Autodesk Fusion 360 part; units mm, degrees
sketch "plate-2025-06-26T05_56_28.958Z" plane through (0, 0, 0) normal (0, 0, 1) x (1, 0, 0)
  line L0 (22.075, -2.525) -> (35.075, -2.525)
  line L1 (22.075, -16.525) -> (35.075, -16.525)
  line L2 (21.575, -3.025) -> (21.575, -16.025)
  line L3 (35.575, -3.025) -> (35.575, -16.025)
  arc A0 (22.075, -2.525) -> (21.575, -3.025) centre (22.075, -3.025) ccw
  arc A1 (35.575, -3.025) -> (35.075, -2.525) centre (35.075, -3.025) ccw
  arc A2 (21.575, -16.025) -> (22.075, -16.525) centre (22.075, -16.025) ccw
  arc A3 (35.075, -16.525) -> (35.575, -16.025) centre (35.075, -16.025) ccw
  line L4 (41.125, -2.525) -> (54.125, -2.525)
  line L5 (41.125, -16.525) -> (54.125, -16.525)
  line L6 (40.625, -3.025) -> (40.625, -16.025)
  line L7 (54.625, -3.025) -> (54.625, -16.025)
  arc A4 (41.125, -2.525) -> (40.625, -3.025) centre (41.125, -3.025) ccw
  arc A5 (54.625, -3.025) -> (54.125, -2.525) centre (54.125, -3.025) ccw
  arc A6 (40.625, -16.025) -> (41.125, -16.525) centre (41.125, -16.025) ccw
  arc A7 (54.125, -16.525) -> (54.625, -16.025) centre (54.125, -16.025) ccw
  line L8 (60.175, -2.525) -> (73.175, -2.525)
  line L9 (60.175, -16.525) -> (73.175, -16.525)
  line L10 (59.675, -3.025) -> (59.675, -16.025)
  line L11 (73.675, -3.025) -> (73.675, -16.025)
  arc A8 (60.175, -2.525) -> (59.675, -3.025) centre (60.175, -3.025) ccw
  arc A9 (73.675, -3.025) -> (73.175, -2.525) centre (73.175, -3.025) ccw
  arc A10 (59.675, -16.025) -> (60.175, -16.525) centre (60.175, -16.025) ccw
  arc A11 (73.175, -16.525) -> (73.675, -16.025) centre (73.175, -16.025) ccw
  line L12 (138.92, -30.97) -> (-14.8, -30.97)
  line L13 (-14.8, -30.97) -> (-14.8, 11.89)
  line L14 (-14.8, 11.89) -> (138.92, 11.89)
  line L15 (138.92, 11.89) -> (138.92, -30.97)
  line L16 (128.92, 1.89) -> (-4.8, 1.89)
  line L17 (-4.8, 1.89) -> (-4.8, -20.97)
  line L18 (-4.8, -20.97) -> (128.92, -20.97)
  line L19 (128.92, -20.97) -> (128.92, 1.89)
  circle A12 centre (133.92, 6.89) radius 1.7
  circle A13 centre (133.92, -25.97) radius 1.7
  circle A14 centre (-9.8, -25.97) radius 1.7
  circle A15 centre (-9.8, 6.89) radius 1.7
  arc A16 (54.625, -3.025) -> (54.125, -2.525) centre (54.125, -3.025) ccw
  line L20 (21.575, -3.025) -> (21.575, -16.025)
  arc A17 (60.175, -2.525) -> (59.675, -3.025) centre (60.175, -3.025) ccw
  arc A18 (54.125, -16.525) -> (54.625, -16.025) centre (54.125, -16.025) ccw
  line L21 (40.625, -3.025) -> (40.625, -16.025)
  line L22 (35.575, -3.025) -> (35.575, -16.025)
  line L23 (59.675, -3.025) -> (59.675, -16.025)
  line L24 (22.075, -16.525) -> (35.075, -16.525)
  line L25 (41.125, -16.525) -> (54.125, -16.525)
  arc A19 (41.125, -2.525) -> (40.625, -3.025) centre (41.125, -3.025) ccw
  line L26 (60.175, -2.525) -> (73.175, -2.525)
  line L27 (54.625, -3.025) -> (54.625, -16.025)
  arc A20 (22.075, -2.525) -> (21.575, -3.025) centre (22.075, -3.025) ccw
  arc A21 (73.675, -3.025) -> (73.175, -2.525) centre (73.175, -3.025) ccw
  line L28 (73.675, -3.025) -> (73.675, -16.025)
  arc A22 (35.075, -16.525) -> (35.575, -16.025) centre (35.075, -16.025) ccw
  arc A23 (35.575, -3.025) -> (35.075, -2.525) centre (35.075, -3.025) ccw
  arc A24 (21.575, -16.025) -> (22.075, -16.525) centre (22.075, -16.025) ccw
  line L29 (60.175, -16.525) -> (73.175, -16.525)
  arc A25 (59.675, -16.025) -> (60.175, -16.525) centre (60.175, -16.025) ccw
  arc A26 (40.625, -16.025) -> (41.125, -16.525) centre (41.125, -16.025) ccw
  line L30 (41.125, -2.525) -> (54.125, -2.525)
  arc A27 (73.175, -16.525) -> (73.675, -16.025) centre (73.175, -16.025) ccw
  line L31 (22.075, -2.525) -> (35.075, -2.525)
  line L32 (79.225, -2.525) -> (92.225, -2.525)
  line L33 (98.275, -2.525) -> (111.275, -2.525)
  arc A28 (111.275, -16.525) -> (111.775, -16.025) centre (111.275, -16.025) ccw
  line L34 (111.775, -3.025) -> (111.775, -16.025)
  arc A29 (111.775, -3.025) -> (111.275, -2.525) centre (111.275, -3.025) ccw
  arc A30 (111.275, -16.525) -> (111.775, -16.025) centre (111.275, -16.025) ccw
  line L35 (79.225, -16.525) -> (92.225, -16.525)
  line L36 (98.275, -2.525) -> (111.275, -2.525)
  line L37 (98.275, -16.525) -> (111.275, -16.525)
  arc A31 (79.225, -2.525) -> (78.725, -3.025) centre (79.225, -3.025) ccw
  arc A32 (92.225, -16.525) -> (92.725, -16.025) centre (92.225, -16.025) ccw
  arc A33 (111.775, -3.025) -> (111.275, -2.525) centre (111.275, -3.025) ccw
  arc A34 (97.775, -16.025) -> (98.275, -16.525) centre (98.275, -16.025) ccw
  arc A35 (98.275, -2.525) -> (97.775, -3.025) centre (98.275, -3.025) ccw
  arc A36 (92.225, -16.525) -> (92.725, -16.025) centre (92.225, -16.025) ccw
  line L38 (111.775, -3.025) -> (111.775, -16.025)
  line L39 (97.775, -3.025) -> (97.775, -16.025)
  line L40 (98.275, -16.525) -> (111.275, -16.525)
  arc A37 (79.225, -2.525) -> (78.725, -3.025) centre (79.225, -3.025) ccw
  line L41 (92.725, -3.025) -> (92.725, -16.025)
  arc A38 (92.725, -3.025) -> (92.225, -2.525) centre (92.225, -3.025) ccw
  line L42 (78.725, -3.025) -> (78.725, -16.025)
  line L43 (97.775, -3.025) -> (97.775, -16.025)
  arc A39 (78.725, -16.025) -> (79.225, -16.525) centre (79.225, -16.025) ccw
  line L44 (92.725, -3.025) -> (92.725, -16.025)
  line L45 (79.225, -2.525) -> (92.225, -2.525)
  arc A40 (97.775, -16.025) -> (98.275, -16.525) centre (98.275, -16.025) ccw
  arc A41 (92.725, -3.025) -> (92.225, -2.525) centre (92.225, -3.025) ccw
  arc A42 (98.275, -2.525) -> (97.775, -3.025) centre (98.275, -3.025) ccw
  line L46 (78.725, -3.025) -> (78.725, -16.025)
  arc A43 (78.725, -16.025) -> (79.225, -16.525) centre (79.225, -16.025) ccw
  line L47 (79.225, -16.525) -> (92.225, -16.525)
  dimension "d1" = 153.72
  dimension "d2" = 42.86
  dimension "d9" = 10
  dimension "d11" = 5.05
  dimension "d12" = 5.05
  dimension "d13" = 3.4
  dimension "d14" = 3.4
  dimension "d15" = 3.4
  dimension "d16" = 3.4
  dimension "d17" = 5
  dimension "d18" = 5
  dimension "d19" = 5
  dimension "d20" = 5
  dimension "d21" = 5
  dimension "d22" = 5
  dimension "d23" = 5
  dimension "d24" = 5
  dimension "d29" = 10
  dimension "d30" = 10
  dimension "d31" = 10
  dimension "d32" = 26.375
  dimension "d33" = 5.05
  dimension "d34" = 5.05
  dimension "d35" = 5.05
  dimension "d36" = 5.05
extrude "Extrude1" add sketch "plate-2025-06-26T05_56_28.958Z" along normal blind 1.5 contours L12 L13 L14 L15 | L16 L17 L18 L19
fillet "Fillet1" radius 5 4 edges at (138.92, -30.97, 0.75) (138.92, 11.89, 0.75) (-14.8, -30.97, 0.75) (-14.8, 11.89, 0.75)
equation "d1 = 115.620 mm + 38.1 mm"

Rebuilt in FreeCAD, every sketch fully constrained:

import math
import FreeCAD as App
import Part
import Sketcher
from FreeCAD import Vector


def edges_at(feature, points):
    """Names of the edges that pass closest to the given points."""
    edges = feature.Shape.Edges
    near = lambda p: min(range(len(edges)), key=lambda i: edges[i].distToShape(Part.Vertex(*p))[0])
    return sorted({f"Edge{near(p) + 1}" for p in points})


def add_polygon(sketch, points):
    """Adds a closed chain of lines whose ends are joined by coincident constraints."""
    first, n = sketch.GeometryCount, len(points)
    for a, b in zip(points, points[1:] + points[:1]):
        sketch.addGeometry(Part.LineSegment(App.Vector(*a, 0), App.Vector(*b, 0)), False)
    for i in range(n):
        sketch.addConstraint(Sketcher.Constraint("Coincident", first + i, 2, first + (i + 1) % n, 1))

doc = App.newDocument("Part")
body = doc.addObject("PartDesign::Body", "Body")

# Sketch on XY plane
sketch1 = doc.addObject("Sketcher::SketchObject", "Sketch")
body.addObject(sketch1)
sketch1.AttachmentSupport = (doc.XY_Plane, [""])
sketch1.MapMode = "FlatFace"
add_polygon(sketch1, [(-14.8, -31), (138.9, -31), (138.9, 11.9), (-14.8, 11.9)])  # lines 0-3
sketch1.addGeometry(Part.Circle(Vector(-9.8, -26, 0), Vector(0, 0, 1), 1.7), False)  # 4
sketch1.addGeometry(Part.Circle(Vector(133.9, -26, 0), Vector(0, 0, 1), 1.7), False)  # 5
sketch1.addGeometry(Part.Circle(Vector(-9.8, 6.9, 0), Vector(0, 0, 1), 1.7), False)  # 6
sketch1.addGeometry(Part.Circle(Vector(133.9, 6.9, 0), Vector(0, 0, 1), 1.7), False)  # 7
sketch1.addGeometry(Part.ArcOfCircle(Part.Circle(Vector(111.3, -16, 0), Vector(0, 0, 1), 0.5), math.radians(-90), math.radians(0)), False)  # 8
sketch1.addGeometry(Part.LineSegment(Vector(111.3, -16.5, 0), Vector(98.3, -16.5, 0)), False)  # 9
sketch1.addGeometry(Part.ArcOfCircle(Part.Circle(Vector(98.3, -16, 0), Vector(0, 0, 1), 0.5), math.radians(180), math.radians(270)), False)  # 10
sketch1.addGeometry(Part.LineSegment(Vector(97.8, -16, 0), Vector(97.8, -3, 0)), False)  # 11
sketch1.addGeometry(Part.ArcOfCircle(Part.Circle(Vector(98.3, -3, 0), Vector(0, 0, 1), 0.5), math.radians(90), math.radians(180)), False)  # 12
sketch1.addGeometry(Part.LineSegment(Vector(98.3, -2.5, 0), Vector(111.3, -2.5, 0)), False)  # 13
sketch1.addGeometry(Part.ArcOfCircle(Part.Circle(Vector(111.3, -3, 0), Vector(0, 0, 1), 0.5), math.radians(0), math.radians(90)), False)  # 14
sketch1.addGeometry(Part.LineSegment(Vector(111.8, -3, 0), Vector(111.8, -16, 0)), False)  # 15
sketch1.addGeometry(Part.ArcOfCircle(Part.Circle(Vector(22.1, -3, 0), Vector(0, 0, 1), 0.5), math.radians(90), math.radians(180)), False)  # 16
sketch1.addGeometry(Part.LineSegment(Vector(22.1, -2.5, 0), Vector(35.1, -2.5, 0)), False)  # 17
sketch1.addGeometry(Part.ArcOfCircle(Part.Circle(Vector(35.1, -3, 0), Vector(0, 0, 1), 0.5), math.radians(0), math.radians(90)), False)  # 18
sketch1.addGeometry(Part.LineSegment(Vector(35.6, -3, 0), Vector(35.6, -16, 0)), False)  # 19
sketch1.addGeometry(Part.ArcOfCircle(Part.Circle(Vector(35.1, -16, 0), Vector(0, 0, 1), 0.5), math.radians(-90), math.radians(0)), False)  # 20
sketch1.addGeometry(Part.LineSegment(Vector(35.1, -16.5, 0), Vector(22.1, -16.5, 0)), False)  # 21
sketch1.addGeometry(Part.ArcOfCircle(Part.Circle(Vector(22.1, -16, 0), Vector(0, 0, 1), 0.5), math.radians(180), math.radians(270)), False)  # 22
sketch1.addGeometry(Part.LineSegment(Vector(21.6, -16, 0), Vector(21.6, -3, 0)), False)  # 23
sketch1.addGeometry(Part.ArcOfCircle(Part.Circle(Vector(41.1, -3, 0), Vector(0, 0, 1), 0.5), math.radians(90), math.radians(180)), False)  # 24
sketch1.addGeometry(Part.LineSegment(Vector(41.1, -2.5, 0), Vector(54.1, -2.5, 0)), False)  # 25
sketch1.addGeometry(Part.ArcOfCircle(Part.Circle(Vector(54.1, -3, 0), Vector(0, 0, 1), 0.5), math.radians(0), math.radians(90)), False)  # 26
sketch1.addGeometry(Part.LineSegment(Vector(54.6, -3, 0), Vector(54.6, -16, 0)), False)  # 27
sketch1.addGeometry(Part.ArcOfCircle(Part.Circle(Vector(54.1, -16, 0), Vector(0, 0, 1), 0.5), math.radians(-90), math.radians(0)), False)  # 28
sketch1.addGeometry(Part.LineSegment(Vector(54.1, -16.5, 0), Vector(41.1, -16.5, 0)), False)  # 29
sketch1.addGeometry(Part.ArcOfCircle(Part.Circle(Vector(41.1, -16, 0), Vector(0, 0, 1), 0.5), math.radians(180), math.radians(270)), False)  # 30
sketch1.addGeometry(Part.LineSegment(Vector(40.6, -16, 0), Vector(40.6, -3, 0)), False)  # 31
sketch1.addGeometry(Part.ArcOfCircle(Part.Circle(Vector(60.2, -3, 0), Vector(0, 0, 1), 0.5), math.radians(90), math.radians(180)), False)  # 32
sketch1.addGeometry(Part.LineSegment(Vector(60.2, -2.5, 0), Vector(73.2, -2.5, 0)), False)  # 33
sketch1.addGeometry(Part.ArcOfCircle(Part.Circle(Vector(73.2, -3, 0), Vector(0, 0, 1), 0.5), math.radians(0), math.radians(90)), False)  # 34
sketch1.addGeometry(Part.LineSegment(Vector(73.7, -3, 0), Vector(73.7, -16, 0)), False)  # 35
sketch1.addGeometry(Part.ArcOfCircle(Part.Circle(Vector(73.2, -16, 0), Vector(0, 0, 1), 0.5), math.radians(-90), math.radians(0)), False)  # 36
sketch1.addGeometry(Part.LineSegment(Vector(73.2, -16.5, 0), Vector(60.2, -16.5, 0)), False)  # 37
sketch1.addGeometry(Part.ArcOfCircle(Part.Circle(Vector(60.2, -16, 0), Vector(0, 0, 1), 0.5), math.radians(180), math.radians(270)), False)  # 38
sketch1.addGeometry(Part.LineSegment(Vector(59.7, -16, 0), Vector(59.7, -3, 0)), False)  # 39
sketch1.addGeometry(Part.ArcOfCircle(Part.Circle(Vector(79.2, -3, 0), Vector(0, 0, 1), 0.5), math.radians(90), math.radians(180)), False)  # 40
sketch1.addGeometry(Part.LineSegment(Vector(79.2, -2.5, 0), Vector(92.2, -2.5, 0)), False)  # 41
sketch1.addGeometry(Part.ArcOfCircle(Part.Circle(Vector(92.2, -3, 0), Vector(0, 0, 1), 0.5), math.radians(0), math.radians(90)), False)  # 42
sketch1.addGeometry(Part.LineSegment(Vector(92.7, -3, 0), Vector(92.7, -16, 0)), False)  # 43
sketch1.addGeometry(Part.ArcOfCircle(Part.Circle(Vector(92.2, -16, 0), Vector(0, 0, 1), 0.5), math.radians(-90), math.radians(0)), False)  # 44
sketch1.addGeometry(Part.LineSegment(Vector(92.2, -16.5, 0), Vector(79.2, -16.5, 0)), False)  # 45
sketch1.addGeometry(Part.ArcOfCircle(Part.Circle(Vector(79.2, -16, 0), Vector(0, 0, 1), 0.5), math.radians(180), math.radians(270)), False)  # 46
sketch1.addGeometry(Part.LineSegment(Vector(78.7, -16, 0), Vector(78.7, -3, 0)), False)  # 47
sketch1.addConstraint(Sketcher.Constraint("Tangent", 8, 1, 9, 1))
sketch1.addConstraint(Sketcher.Constraint("Tangent", 9, 2, 10, 2))
sketch1.addConstraint(Sketcher.Constraint("Tangent", 10, 1, 11, 1))
sketch1.addConstraint(Sketcher.Constraint("Tangent", 11, 2, 12, 2))
sketch1.addConstraint(Sketcher.Constraint("Tangent", 12, 1, 13, 1))
sketch1.addConstraint(Sketcher.Constraint("Tangent", 13, 2, 14, 2))
sketch1.addConstraint(Sketcher.Constraint("Tangent", 14, 1, 15, 1))
sketch1.addConstraint(Sketcher.Constraint("Tangent", 15, 2, 8, 2))
sketch1.addConstraint(Sketcher.Constraint("Tangent", 16, 1, 17, 1))
sketch1.addConstraint(Sketcher.Constraint("Tangent", 17, 2, 18, 2))
sketch1.addConstraint(Sketcher.Constraint("Tangent", 18, 1, 19, 1))
sketch1.addConstraint(Sketcher.Constraint("Tangent", 19, 2, 20, 2))
sketch1.addConstraint(Sketcher.Constraint("Tangent", 20, 1, 21, 1))
sketch1.addConstraint(Sketcher.Constraint("Tangent", 21, 2, 22, 2))
sketch1.addConstraint(Sketcher.Constraint("Tangent", 22, 1, 23, 1))
sketch1.addConstraint(Sketcher.Constraint("Tangent", 23, 2, 16, 2))
sketch1.addConstraint(Sketcher.Constraint("Tangent", 24, 1, 25, 1))
sketch1.addConstraint(Sketcher.Constraint("Tangent", 25, 2, 26, 2))
sketch1.addConstraint(Sketcher.Constraint("Tangent", 26, 1, 27, 1))
sketch1.addConstraint(Sketcher.Constraint("Tangent", 27, 2, 28, 2))
sketch1.addConstraint(Sketcher.Constraint("Tangent", 28, 1, 29, 1))
sketch1.addConstraint(Sketcher.Constraint("Tangent", 29, 2, 30, 2))
sketch1.addConstraint(Sketcher.Constraint("Tangent", 30, 1, 31, 1))
sketch1.addConstraint(Sketcher.Constraint("Tangent", 31, 2, 24, 2))
sketch1.addConstraint(Sketcher.Constraint("Tangent", 32, 1, 33, 1))
sketch1.addConstraint(Sketcher.Constraint("Tangent", 33, 2, 34, 2))
sketch1.addConstraint(Sketcher.Constraint("Tangent", 34, 1, 35, 1))
sketch1.addConstraint(Sketcher.Constraint("Tangent", 35, 2, 36, 2))
sketch1.addConstraint(Sketcher.Constraint("Tangent", 36, 1, 37, 1))
sketch1.addConstraint(Sketcher.Constraint("Tangent", 37, 2, 38, 2))
sketch1.addConstraint(Sketcher.Constraint("Tangent", 38, 1, 39, 1))
sketch1.addConstraint(Sketcher.Constraint("Tangent", 39, 2, 32, 2))
sketch1.addConstraint(Sketcher.Constraint("Tangent", 40, 1, 41, 1))
sketch1.addConstraint(Sketcher.Constraint("Tangent", 41, 2, 42, 2))
sketch1.addConstraint(Sketcher.Constraint("Tangent", 42, 1, 43, 1))
sketch1.addConstraint(Sketcher.Constraint("Tangent", 43, 2, 44, 2))
sketch1.addConstraint(Sketcher.Constraint("Tangent", 44, 1, 45, 1))
sketch1.addConstraint(Sketcher.Constraint("Tangent", 45, 2, 46, 2))
sketch1.addConstraint(Sketcher.Constraint("Tangent", 46, 1, 47, 1))
sketch1.addConstraint(Sketcher.Constraint("Tangent", 47, 2, 40, 2))
sketch1.addConstraint(Sketcher.Constraint("Horizontal", 0))
sketch1.addConstraint(Sketcher.Constraint("Vertical", 1))
sketch1.addConstraint(Sketcher.Constraint("Horizontal", 2))
sketch1.addConstraint(Sketcher.Constraint("Vertical", 3))
sketch1.addConstraint(Sketcher.Constraint("Horizontal", 9))
sketch1.addConstraint(Sketcher.Constraint("Vertical", 11))
sketch1.addConstraint(Sketcher.Constraint("Horizontal", 13))
sketch1.addConstraint(Sketcher.Constraint("Vertical", 15))
sketch1.addConstraint(Sketcher.Constraint("Horizontal", 17))
sketch1.addConstraint(Sketcher.Constraint("Vertical", 19))
sketch1.addConstraint(Sketcher.Constraint("Horizontal", 21))
sketch1.addConstraint(Sketcher.Constraint("Vertical", 23))
sketch1.addConstraint(Sketcher.Constraint("Horizontal", 25))
sketch1.addConstraint(Sketcher.Constraint("Vertical", 27))
sketch1.addConstraint(Sketcher.Constraint("Horizontal", 29))
sketch1.addConstraint(Sketcher.Constraint("Vertical", 31))
sketch1.addConstraint(Sketcher.Constraint("Horizontal", 33))
sketch1.addConstraint(Sketcher.Constraint("Vertical", 35))
sketch1.addConstraint(Sketcher.Constraint("Horizontal", 37))
sketch1.addConstraint(Sketcher.Constraint("Vertical", 39))
sketch1.addConstraint(Sketcher.Constraint("Horizontal", 41))
sketch1.addConstraint(Sketcher.Constraint("Vertical", 43))
sketch1.addConstraint(Sketcher.Constraint("Horizontal", 45))
sketch1.addConstraint(Sketcher.Constraint("Vertical", 47))
sketch1.addConstraint(Sketcher.Constraint("Equal", 4, 5))
sketch1.addConstraint(Sketcher.Constraint("Equal", 5, 6))
sketch1.addConstraint(Sketcher.Constraint("Equal", 6, 7))
sketch1.addConstraint(Sketcher.Constraint("Equal", 8, 10))
sketch1.addConstraint(Sketcher.Constraint("Equal", 10, 12))
sketch1.addConstraint(Sketcher.Constraint("Equal", 12, 14))
sketch1.addConstraint(Sketcher.Constraint("Equal", 14, 16))
sketch1.addConstraint(Sketcher.Constraint("Equal", 16, 18))
sketch1.addConstraint(Sketcher.Constraint("Equal", 18, 20))
sketch1.addConstraint(Sketcher.Constraint("Equal", 20, 22))
sketch1.addConstraint(Sketcher.Constraint("Equal", 22, 24))
sketch1.addConstraint(Sketcher.Constraint("Equal", 24, 26))
sketch1.addConstraint(Sketcher.Constraint("Equal", 26, 28))
sketch1.addConstraint(Sketcher.Constraint("Equal", 28, 30))
sketch1.addConstraint(Sketcher.Constraint("Equal", 30, 32))
sketch1.addConstraint(Sketcher.Constraint("Equal", 32, 34))
sketch1.addConstraint(Sketcher.Constraint("Equal", 34, 36))
sketch1.addConstraint(Sketcher.Constraint("Equal", 36, 38))
sketch1.addConstraint(Sketcher.Constraint("Equal", 38, 40))
sketch1.addConstraint(Sketcher.Constraint("Equal", 40, 42))
sketch1.addConstraint(Sketcher.Constraint("Equal", 42, 44))
sketch1.addConstraint(Sketcher.Constraint("Equal", 44, 46))
sketch1.addConstraint(Sketcher.Constraint("Horizontal", 4, 3, 5, 3))
sketch1.addConstraint(Sketcher.Constraint("Horizontal", 6, 3, 7, 3))
sketch1.addConstraint(Sketcher.Constraint("Horizontal", 14, 3, 16, 3))
sketch1.addConstraint(Sketcher.Constraint("Horizontal", 10, 3, 20, 3))
sketch1.addConstraint(Sketcher.Constraint("Horizontal", 18, 3, 24, 3))
sketch1.addConstraint(Sketcher.Constraint("Horizontal", 22, 3, 28, 3))
sketch1.addConstraint(Sketcher.Constraint("Horizontal", 26, 3, 32, 3))
sketch1.addConstraint(Sketcher.Constraint("Horizontal", 30, 3, 36, 3))
sketch1.addConstraint(Sketcher.Constraint("Horizontal", 34, 3, 40, 3))
sketch1.addConstraint(Sketcher.Constraint("Horizontal", 38, 3, 44, 3))
sketch1.addConstraint(Sketcher.Constraint("Vertical", 4, 3, 6, 3))
sketch1.addConstraint(Sketcher.Constraint("Vertical", 5, 3, 7, 3))
sketch1.addConstraint(Sketcher.Constraint("Equal", 13, 17))
sketch1.addConstraint(Sketcher.Constraint("Equal", 21, 25))
sketch1.addConstraint(Sketcher.Constraint("Equal", 29, 33))
sketch1.addConstraint(Sketcher.Constraint("Equal", 37, 41))
sketch1.addConstraint(Sketcher.Constraint("Equal", 45, 11))
sketch1.addConstraint(Sketcher.Constraint("Diameter", 4, 3.4))
sketch1.addConstraint(Sketcher.Constraint("DistanceX", 0, 1, 0, 2, 153.72))
sketch1.addConstraint(Sketcher.Constraint("DistanceY", 1, 1, 1, 2, 42.86))
sketch1.addConstraint(Sketcher.Constraint("Radius", 8, 0.5))
sketch1.addConstraint(Sketcher.Constraint("DistanceX", 9, 2, 9, 1, 13.0))
sketch1.addConstraint(Sketcher.Constraint("DistanceX", 4, 3, -1, 1, 9.8))
sketch1.addConstraint(Sketcher.Constraint("DistanceX", 2, 2, -1, 1, 14.8))
sketch1.addConstraint(Sketcher.Constraint("DistanceY", 4, 3, -1, 1, 25.97))
sketch1.addConstraint(Sketcher.Constraint("DistanceX", -1, 1, 5, 3, 133.92))
sketch1.addConstraint(Sketcher.Constraint("DistanceY", -1, 1, 6, 3, 6.89))
sketch1.addConstraint(Sketcher.Constraint("DistanceY", 0, 2, -1, 1, 30.97))
sketch1.addConstraint(Sketcher.Constraint("DistanceX", -1, 1, 8, 3, 111.275))
sketch1.addConstraint(Sketcher.Constraint("DistanceY", 8, 3, -1, 1, 16.025))
sketch1.addConstraint(Sketcher.Constraint("DistanceX", -1, 1, 16, 3, 22.075))
sketch1.addConstraint(Sketcher.Constraint("DistanceX", -1, 1, 24, 3, 41.125))
sketch1.addConstraint(Sketcher.Constraint("DistanceX", -1, 1, 32, 3, 60.175))
sketch1.addConstraint(Sketcher.Constraint("DistanceX", -1, 1, 40, 3, 79.225))
pad1 = doc.addObject("PartDesign::Pad", "Pad")
body.addObject(pad1)
pad1.Profile = sketch1
pad1.Length = 1.5
doc.recompute()

fillet = doc.addObject("PartDesign::Fillet", "Fillet")
body.addObject(fillet)
fillet.Base = (pad1, edges_at(pad1, [
    (138.92, -30.97, 0.75),
    (138.92, 11.89, 0.75),
    (-14.8, -30.97, 0.75),
    (-14.8, 11.89, 0.75),
]))
fillet.Radius = 5

doc.recompute()
